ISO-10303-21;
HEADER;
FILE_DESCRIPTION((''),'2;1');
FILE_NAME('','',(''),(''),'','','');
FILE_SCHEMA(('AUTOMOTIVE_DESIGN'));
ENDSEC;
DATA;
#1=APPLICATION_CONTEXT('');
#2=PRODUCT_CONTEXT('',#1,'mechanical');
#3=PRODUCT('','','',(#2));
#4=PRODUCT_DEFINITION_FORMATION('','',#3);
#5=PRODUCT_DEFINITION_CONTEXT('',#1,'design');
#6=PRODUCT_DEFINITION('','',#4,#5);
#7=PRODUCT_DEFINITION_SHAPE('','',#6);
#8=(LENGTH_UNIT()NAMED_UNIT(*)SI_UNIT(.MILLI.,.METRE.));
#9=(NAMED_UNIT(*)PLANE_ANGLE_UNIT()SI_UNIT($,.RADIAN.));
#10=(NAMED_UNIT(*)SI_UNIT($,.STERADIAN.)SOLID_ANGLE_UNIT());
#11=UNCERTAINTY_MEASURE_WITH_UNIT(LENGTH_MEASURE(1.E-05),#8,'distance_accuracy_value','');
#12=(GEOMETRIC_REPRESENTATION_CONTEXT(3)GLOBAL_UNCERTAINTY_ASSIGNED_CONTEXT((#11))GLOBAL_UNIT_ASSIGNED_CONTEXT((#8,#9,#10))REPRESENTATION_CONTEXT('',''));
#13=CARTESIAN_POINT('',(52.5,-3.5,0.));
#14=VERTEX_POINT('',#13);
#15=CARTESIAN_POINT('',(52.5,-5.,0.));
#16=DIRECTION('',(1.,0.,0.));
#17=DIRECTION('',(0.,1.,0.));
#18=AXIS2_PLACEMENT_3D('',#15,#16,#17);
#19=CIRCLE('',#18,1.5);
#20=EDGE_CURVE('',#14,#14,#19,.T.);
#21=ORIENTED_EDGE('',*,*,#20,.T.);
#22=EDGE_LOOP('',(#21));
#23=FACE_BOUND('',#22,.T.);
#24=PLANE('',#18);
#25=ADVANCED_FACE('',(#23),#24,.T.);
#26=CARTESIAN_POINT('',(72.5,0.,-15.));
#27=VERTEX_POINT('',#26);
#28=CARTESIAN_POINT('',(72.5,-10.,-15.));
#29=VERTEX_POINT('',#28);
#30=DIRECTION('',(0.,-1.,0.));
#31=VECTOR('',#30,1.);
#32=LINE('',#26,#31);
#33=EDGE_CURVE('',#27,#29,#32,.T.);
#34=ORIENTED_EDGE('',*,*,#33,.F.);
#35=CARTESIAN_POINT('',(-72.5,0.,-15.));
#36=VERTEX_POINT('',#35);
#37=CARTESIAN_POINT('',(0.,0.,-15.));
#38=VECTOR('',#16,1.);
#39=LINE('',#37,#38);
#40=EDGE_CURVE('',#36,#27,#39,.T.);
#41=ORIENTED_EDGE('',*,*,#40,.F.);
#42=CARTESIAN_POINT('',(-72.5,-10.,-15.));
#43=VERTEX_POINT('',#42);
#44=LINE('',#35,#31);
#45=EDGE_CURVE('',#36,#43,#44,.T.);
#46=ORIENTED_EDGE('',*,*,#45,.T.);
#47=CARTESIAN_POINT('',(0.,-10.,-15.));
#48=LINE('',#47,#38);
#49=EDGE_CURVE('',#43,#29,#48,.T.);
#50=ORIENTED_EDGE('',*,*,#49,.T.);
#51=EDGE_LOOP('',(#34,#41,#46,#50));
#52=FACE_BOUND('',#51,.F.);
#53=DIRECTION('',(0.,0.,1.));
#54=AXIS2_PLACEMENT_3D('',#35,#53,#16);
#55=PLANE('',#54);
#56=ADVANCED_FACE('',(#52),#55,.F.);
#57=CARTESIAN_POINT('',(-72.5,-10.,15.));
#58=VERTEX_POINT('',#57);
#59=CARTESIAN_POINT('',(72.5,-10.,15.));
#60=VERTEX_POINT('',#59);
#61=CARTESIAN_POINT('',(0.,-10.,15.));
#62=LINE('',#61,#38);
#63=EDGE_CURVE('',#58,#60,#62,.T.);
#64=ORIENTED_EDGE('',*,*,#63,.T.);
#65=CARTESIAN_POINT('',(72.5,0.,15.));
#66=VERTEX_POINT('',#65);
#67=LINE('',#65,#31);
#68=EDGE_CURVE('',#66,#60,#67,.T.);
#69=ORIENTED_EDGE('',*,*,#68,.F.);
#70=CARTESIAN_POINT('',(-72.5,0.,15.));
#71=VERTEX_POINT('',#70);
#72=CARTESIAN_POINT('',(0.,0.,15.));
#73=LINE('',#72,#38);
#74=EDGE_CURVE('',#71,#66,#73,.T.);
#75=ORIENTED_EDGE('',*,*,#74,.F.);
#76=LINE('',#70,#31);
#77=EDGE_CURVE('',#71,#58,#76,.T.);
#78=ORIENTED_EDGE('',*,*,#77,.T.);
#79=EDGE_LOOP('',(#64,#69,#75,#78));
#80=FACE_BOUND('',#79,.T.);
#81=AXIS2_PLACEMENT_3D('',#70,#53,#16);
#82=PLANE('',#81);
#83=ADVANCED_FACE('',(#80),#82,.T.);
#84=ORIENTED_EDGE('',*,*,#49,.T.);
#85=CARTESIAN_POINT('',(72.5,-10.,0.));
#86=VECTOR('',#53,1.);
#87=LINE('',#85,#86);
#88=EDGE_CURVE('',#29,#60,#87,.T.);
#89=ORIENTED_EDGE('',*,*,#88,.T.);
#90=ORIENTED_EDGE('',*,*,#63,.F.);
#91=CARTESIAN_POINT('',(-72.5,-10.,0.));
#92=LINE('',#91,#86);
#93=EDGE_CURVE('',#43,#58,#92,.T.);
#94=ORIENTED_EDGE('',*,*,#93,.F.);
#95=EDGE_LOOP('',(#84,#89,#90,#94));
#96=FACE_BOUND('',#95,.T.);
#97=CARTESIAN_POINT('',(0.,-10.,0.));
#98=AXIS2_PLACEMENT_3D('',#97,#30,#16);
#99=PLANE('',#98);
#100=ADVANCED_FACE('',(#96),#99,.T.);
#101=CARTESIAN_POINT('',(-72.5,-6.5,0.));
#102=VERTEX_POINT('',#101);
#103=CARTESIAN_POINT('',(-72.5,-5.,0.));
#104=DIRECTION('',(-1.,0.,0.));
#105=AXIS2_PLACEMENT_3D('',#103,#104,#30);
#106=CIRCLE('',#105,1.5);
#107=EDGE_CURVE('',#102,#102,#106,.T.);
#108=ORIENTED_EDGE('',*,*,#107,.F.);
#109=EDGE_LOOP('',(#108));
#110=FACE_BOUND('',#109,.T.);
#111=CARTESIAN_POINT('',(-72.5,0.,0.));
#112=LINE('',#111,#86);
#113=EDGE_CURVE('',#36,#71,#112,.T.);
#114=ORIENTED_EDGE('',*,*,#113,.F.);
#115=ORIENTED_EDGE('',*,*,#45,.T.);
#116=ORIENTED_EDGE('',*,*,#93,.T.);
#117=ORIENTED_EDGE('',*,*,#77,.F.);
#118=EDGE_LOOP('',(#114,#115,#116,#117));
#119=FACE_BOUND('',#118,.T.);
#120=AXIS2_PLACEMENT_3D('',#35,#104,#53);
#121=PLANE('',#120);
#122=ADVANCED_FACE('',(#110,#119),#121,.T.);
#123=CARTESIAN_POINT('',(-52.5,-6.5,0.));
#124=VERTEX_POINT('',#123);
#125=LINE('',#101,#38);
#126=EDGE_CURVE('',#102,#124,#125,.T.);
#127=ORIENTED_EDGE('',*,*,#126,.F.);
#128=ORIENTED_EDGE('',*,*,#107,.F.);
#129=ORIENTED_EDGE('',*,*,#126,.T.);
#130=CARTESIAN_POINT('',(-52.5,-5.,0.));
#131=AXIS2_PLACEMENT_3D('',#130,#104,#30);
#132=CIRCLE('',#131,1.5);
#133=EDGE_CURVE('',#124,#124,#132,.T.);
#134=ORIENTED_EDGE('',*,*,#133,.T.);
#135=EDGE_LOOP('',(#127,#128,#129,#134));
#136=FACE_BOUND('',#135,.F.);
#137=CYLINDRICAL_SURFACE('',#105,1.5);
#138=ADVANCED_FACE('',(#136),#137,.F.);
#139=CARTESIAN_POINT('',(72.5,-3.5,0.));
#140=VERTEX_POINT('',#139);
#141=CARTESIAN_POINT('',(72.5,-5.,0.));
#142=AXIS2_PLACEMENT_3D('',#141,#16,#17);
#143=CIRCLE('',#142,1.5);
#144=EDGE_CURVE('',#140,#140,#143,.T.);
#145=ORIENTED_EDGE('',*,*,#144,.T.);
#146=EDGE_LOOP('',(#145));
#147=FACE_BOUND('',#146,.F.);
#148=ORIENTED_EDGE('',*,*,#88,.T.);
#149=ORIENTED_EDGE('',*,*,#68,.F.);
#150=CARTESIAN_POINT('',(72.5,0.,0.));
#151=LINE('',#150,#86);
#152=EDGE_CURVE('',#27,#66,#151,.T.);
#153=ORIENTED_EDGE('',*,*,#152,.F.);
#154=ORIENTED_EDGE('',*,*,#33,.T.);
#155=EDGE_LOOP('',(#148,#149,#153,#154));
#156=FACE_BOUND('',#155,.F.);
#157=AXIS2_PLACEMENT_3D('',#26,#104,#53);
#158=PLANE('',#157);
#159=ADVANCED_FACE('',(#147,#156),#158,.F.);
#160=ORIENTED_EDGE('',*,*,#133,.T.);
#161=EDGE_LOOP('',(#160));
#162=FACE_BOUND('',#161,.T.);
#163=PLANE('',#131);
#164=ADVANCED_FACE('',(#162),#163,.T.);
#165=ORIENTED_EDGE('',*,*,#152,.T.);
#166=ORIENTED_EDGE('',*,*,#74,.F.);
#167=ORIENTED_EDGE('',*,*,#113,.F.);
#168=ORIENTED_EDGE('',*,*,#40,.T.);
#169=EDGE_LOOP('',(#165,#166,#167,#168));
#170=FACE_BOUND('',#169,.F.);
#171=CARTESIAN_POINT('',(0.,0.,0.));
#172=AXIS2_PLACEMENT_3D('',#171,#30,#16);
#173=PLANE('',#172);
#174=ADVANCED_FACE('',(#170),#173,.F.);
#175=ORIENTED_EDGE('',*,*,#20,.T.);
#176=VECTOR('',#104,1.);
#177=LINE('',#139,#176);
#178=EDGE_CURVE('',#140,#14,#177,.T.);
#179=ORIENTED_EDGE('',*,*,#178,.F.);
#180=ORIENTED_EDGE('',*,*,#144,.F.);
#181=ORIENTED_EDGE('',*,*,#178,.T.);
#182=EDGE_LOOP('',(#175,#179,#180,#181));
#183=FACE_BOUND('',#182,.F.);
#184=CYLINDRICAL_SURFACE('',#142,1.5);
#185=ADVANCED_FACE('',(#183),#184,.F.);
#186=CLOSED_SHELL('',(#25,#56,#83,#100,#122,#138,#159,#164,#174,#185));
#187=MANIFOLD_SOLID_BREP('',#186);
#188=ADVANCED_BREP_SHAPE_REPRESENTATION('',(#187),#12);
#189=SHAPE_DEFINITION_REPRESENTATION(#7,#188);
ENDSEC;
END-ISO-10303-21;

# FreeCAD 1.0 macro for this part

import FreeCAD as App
import Part
import Sketcher

V = App.Vector


def add_polygon(sketch, points):
    """Adds a closed chain of lines whose ends are joined by coincident constraints."""
    first, n = sketch.GeometryCount, len(points)
    for a, b in zip(points, points[1:] + points[:1]):
        sketch.addGeometry(Part.LineSegment(App.Vector(*a, 0), App.Vector(*b, 0)), False)
    for i in range(n):
        sketch.addConstraint(Sketcher.Constraint("Coincident", first + i, 2, first + (i + 1) % n, 1))

doc = App.newDocument("Part")
body = doc.addObject("PartDesign::Body", "Body")

# Sketch on XZ plane
sketch1 = doc.addObject("Sketcher::SketchObject", "Sketch")
body.addObject(sketch1)
sketch1.AttachmentSupport = (doc.XZ_Plane, [""])
sketch1.MapMode = "FlatFace"
add_polygon(sketch1, [(-72, 15), (-72, -15), (72, -15), (72, 15)])  # lines 0-3
sketch1.addConstraint([
    Sketcher.Constraint("Vertical", 0),
    Sketcher.Constraint("Horizontal", 1),
    Sketcher.Constraint("Vertical", 2),
    Sketcher.Constraint("Horizontal", 3),
    Sketcher.Constraint("Symmetric", 0, 2, 2, 2, -1, 1),
    Sketcher.Constraint("DistanceX", 1, 1, 1, 2, 145.0),
    Sketcher.Constraint("DistanceY", 0, 2, 0, 1, 30.0),
])
pad1 = doc.addObject("PartDesign::Pad", "Pad")
body.addObject(pad1)
pad1.Profile = sketch1
pad1.Length = 10

# Sketch on YZ plane
sketch2 = doc.addObject("Sketcher::SketchObject", "Sketch001")
body.addObject(sketch2)
sketch2.AttachmentSupport = (doc.YZ_Plane, [""])
sketch2.MapMode = "FlatFace"
sketch2.AttachmentOffset = App.Placement(V(0, 0, -72.5), App.Rotation())
sketch2.addGeometry(Part.Circle(V(-5, 0, 0), V(0, 0, 1), 1.5), False)
sketch2.addConstraint([
    Sketcher.Constraint("PointOnObject", 0, 3, -1),
    Sketcher.Constraint("Diameter", 0, 3.0),
    Sketcher.Constraint("DistanceX", 0, 3, -1, 1, 5.0),
])
pocket1 = doc.addObject("PartDesign::Pocket", "Pocket")
body.addObject(pocket1)
pocket1.Profile = sketch2
pocket1.Length = 20
pocket1.Reversed = True

# Sketch on YZ plane
sketch3 = doc.addObject("Sketcher::SketchObject", "Sketch002")
body.addObject(sketch3)
sketch3.AttachmentSupport = (doc.YZ_Plane, [""])
sketch3.MapMode = "FlatFace"
sketch3.AttachmentOffset = App.Placement(V(0, 0, 72.5), App.Rotation())
sketch3.addGeometry(Part.Circle(V(-5, 0, 0), V(0, 0, 1), 1.5), False)
sketch3.addConstraint([
    Sketcher.Constraint("PointOnObject", 0, 3, -1),
    Sketcher.Constraint("Diameter", 0, 3.0),
    Sketcher.Constraint("DistanceX", 0, 3, -1, 1, 5.0),
])
pocket2 = doc.addObject("PartDesign::Pocket", "Pocket001")
body.addObject(pocket2)
pocket2.Profile = sketch3
pocket2.Length = 20

doc.recompute()
